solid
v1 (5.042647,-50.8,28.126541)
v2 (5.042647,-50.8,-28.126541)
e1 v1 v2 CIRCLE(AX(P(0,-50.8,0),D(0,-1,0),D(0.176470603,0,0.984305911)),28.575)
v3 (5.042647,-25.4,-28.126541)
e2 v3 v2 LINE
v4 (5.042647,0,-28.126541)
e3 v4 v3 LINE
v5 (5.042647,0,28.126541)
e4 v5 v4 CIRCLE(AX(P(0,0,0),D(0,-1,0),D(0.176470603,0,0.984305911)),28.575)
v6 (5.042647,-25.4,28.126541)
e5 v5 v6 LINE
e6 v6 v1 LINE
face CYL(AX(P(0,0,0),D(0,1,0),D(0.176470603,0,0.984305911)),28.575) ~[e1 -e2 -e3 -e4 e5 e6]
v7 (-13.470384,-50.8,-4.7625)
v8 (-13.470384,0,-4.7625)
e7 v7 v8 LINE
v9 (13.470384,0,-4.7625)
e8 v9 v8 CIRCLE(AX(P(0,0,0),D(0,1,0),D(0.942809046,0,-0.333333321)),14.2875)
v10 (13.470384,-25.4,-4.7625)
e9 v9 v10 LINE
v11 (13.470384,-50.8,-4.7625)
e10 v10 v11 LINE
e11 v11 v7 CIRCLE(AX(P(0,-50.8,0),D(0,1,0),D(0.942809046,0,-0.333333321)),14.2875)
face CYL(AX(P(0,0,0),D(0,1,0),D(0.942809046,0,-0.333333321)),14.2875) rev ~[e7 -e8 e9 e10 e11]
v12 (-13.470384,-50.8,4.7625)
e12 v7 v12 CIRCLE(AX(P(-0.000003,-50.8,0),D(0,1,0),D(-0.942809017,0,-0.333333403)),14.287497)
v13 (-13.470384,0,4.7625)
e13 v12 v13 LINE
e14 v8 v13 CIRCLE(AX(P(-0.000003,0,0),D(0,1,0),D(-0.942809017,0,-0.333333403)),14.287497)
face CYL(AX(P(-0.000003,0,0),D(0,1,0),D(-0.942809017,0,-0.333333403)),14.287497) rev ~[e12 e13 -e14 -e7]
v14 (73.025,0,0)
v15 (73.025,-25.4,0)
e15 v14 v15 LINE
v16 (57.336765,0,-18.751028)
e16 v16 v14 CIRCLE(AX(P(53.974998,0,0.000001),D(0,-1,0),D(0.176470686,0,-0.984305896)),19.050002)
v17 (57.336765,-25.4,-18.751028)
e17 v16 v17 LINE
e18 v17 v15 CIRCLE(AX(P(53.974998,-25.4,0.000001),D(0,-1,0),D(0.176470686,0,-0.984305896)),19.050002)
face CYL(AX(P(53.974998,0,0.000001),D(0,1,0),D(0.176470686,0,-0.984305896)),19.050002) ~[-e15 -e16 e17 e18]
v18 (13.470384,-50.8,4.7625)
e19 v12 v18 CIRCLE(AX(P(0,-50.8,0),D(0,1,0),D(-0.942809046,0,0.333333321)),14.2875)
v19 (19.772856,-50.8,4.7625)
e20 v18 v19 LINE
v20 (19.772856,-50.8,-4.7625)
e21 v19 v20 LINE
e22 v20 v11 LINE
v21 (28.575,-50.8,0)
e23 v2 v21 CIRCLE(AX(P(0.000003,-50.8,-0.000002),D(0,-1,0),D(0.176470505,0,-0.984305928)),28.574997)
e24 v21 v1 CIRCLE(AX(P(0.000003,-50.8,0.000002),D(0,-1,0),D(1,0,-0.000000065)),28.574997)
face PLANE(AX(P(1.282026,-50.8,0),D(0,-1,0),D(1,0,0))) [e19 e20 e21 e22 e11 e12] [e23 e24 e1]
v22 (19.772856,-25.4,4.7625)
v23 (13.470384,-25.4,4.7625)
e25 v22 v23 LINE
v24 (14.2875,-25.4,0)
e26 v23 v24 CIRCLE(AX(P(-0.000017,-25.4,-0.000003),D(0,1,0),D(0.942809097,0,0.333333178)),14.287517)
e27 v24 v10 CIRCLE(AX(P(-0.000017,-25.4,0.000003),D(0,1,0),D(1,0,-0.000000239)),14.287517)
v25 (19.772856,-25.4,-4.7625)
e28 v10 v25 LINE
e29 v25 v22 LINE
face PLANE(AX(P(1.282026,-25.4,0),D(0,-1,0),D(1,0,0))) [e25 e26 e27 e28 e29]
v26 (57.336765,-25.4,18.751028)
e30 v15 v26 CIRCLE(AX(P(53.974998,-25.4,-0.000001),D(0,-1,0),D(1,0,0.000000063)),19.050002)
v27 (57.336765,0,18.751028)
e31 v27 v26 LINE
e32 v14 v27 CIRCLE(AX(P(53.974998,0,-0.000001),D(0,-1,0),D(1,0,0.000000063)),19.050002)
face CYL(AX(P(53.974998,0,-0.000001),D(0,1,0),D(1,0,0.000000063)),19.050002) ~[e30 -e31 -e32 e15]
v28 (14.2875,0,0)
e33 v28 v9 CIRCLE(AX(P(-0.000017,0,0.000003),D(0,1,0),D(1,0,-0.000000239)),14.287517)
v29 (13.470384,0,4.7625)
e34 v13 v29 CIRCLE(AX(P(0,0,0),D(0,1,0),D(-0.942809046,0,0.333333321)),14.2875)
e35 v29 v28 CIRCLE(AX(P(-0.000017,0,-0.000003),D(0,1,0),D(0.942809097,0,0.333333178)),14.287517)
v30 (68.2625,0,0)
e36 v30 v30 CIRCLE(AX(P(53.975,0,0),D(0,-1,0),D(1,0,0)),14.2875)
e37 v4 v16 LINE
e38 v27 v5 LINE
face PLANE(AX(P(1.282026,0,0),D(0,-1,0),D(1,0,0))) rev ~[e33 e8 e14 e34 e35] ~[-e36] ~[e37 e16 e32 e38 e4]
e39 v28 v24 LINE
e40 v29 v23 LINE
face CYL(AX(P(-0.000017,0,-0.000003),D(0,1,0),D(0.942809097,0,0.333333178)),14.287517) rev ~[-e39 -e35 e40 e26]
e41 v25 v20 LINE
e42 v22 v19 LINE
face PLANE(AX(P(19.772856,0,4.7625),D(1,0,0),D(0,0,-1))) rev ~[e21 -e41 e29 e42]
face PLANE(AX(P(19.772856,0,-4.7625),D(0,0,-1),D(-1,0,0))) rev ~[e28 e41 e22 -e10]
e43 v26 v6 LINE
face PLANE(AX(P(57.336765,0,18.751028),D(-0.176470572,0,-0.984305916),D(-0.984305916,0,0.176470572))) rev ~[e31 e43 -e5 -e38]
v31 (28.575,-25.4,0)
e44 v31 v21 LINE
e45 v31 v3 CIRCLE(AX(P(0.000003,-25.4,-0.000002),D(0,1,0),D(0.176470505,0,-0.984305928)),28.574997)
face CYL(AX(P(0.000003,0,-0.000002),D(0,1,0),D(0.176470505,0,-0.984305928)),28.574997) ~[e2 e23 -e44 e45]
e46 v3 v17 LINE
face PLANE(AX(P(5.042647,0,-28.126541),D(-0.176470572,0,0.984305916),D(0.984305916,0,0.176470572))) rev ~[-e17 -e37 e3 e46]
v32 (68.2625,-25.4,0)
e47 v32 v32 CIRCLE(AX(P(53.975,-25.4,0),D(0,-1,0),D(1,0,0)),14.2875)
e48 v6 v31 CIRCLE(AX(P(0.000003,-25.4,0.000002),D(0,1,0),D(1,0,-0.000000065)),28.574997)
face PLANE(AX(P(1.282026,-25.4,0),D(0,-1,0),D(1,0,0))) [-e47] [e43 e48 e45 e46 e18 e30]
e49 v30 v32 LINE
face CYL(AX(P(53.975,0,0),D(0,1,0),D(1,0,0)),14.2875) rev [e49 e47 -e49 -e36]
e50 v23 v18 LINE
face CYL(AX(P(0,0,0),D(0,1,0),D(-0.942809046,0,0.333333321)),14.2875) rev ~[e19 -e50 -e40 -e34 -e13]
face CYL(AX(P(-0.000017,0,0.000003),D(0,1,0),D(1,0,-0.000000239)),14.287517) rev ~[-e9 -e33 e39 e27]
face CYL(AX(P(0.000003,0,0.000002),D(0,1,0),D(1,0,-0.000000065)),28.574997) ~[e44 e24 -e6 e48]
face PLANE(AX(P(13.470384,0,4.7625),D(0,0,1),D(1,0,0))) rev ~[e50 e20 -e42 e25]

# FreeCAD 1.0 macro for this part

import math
import FreeCAD as App
import Part
import Sketcher

V = App.Vector
Q = App.Units.Quantity

doc = App.newDocument("Part")
params = doc.addObject("Spreadsheet::Sheet", "Params")
for row, (alias, value) in enumerate([
    ("sketch1_radius", "0.7500001 in"),
    ("sketch1_diameter", "1.125 in"),
    ("sketch1_radius2", "1.125 in"),
    ("pad1_length", "1 in"),
    ("sketch2_radius", "1.1249999 in"),
    ("sketch2_radius2", "0.5625 in"),
    ("sketch2_height", "0.375 in"),
    ("pad2_length", "2 in"),
], start=1):
    params.set(f"A{row}", alias)
    params.set(f"B{row}", "=" + value)
    params.setAlias(f"B{row}", alias)

body = doc.addObject("PartDesign::Body", "Body")

sketch1 = body.newObject("Sketcher::SketchObject", "Sketch")
sketch1.AttachmentSupport = (doc.getObject("XZ_Plane"), [""])
sketch1.MapMode = "FlatFace"
sketch1.addGeometry(Part.ArcOfCircle(Part.Circle(V(0, 0, 0), V(0, 0, 1), 28.6), math.radians(80), math.radians(280)), False)
sketch1.addGeometry(Part.LineSegment(V(5, -28.1, 0), V(57.3, -18.8, 0)), False)
sketch1.addGeometry(Part.ArcOfCircle(Part.Circle(V(54, 0, 0), V(0, 0, 1), 19.1), math.radians(-80), math.radians(0)), False)
sketch1.addGeometry(Part.ArcOfCircle(Part.Circle(V(54, 0, 0), V(0, 0, 1), 19.1), math.radians(0), math.radians(80)), False)
sketch1.addGeometry(Part.LineSegment(V(57.3, 18.8, 0), V(5, 28.1, 0)), False)
sketch1.addGeometry(Part.ArcOfCircle(Part.Circle(V(0, 0, 0), V(0, 0, 1), 14.3), math.radians(-161), math.radians(-19)), False)
sketch1.addGeometry(Part.ArcOfCircle(Part.Circle(V(0, 0, 0), V(0, 0, 1), 14.3), math.radians(161), math.radians(199)), False)
sketch1.addGeometry(Part.ArcOfCircle(Part.Circle(V(0, 0, 0), V(0, 0, 1), 14.3), math.radians(19), math.radians(161)), False)
sketch1.addGeometry(Part.ArcOfCircle(Part.Circle(V(0, 0, 0), V(0, 0, 1), 14.3), math.radians(0), math.radians(19.47)), False)
sketch1.addGeometry(Part.ArcOfCircle(Part.Circle(V(0, 0, 0), V(0, 0, 1), 14.3), math.radians(-19.47), math.radians(0)), False)
sketch1.addGeometry(Part.Circle(V(54, 0, 0), V(0, 0, 1), 14.3), False)
sketch1.addConstraint(Sketcher.Constraint("Tangent", 0, 2, 1, 1))
sketch1.addConstraint(Sketcher.Constraint("Tangent", 1, 2, 2, 1))
sketch1.addConstraint(Sketcher.Constraint("Tangent", 2, 2, 3, 1))
sketch1.addConstraint(Sketcher.Constraint("Tangent", 3, 2, 4, 1))
sketch1.addConstraint(Sketcher.Constraint("Tangent", 4, 2, 0, 1))
sketch1.addConstraint(Sketcher.Constraint("Tangent", 5, 1, 6, 2))
sketch1.addConstraint(Sketcher.Constraint("Tangent", 6, 1, 7, 2))
sketch1.addConstraint(Sketcher.Constraint("Tangent", 7, 1, 8, 2))
sketch1.addConstraint(Sketcher.Constraint("Tangent", 8, 1, 9, 2))
sketch1.addConstraint(Sketcher.Constraint("Tangent", 9, 1, 5, 2))
sketch1.addConstraint(Sketcher.Constraint("Coincident", 0, 3, -1, 1))
sketch1.addConstraint(Sketcher.Constraint("Coincident", 5, 3, -1, 1))
sketch1.addConstraint(Sketcher.Constraint("Coincident", 7, 3, -1, 1))
sketch1.addConstraint(Sketcher.Constraint("Coincident", 10, 3, 2, 3))
sketch1.addConstraint(Sketcher.Constraint("Equal", 2, 3))
sketch1.addConstraint(Sketcher.Constraint("Equal", 7, 10))
sketch1.addConstraint(Sketcher.Constraint("PointOnObject", 2, 3, -1))
sketch1.addConstraint(Sketcher.Constraint("PointOnObject", 2, 2, -1))
sketch1.addConstraint(Sketcher.Constraint("PointOnObject", 8, 1, -1))
sketch1.addConstraint(Sketcher.Constraint("Horizontal", 6, 1, 7, 1))
sketch1.addConstraint(Sketcher.Constraint("Horizontal", 5, 1, 9, 1))
sketch1.addConstraint(Sketcher.Constraint("Vertical", 5, 1, 6, 1))
sketch1.addConstraint(Sketcher.Constraint("Radius", 2, Q("0.7500001 in")))
sketch1.addConstraint(Sketcher.Constraint("Diameter", 10, Q("1.125 in")))
sketch1.addConstraint(Sketcher.Constraint("Radius", 0, Q("1.125 in")))
sketch1.addConstraint(Sketcher.Constraint("DistanceX", -1, 1, 2, 3, Q("2.1249999 in")))
sketch1.addConstraint(Sketcher.Constraint("DistanceY", 5, 1, -1, 1, Q("0.1875 in")))
sketch1.setExpression("Constraints[22]", "Params.sketch1_radius")
sketch1.setExpression("Constraints[23]", "Params.sketch1_diameter")
sketch1.setExpression("Constraints[24]", "Params.sketch1_radius2")
pad1 = body.newObject("PartDesign::Pad", "Pad")
pad1.Profile = sketch1
pad1.setExpression("Length", "Params.pad1_length")

sketch2 = body.newObject("Sketcher::SketchObject", "Sketch001")
sketch2.AttachmentSupport = (doc.getObject("XZ_Plane"), [""])
sketch2.MapMode = "FlatFace"
sketch2.addGeometry(Part.ArcOfCircle(Part.Circle(V(0, 0, 0), V(0, 0, 1), 29), math.radians(-80), math.radians(0)), False)
sketch2.addGeometry(Part.ArcOfCircle(Part.Circle(V(0, 0, 0), V(0, 0, 1), 29), math.radians(0), math.radians(80)), False)
sketch2.addGeometry(Part.ArcOfCircle(Part.Circle(V(0, 0, 0), V(0, 0, 1), 29), math.radians(80), math.radians(280)), False)
sketch2.addGeometry(Part.ArcOfCircle(Part.Circle(V(0, 0, 0), V(0, 0, 1), 14), math.radians(-161), math.radians(-19)), False)
sketch2.addGeometry(Part.ArcOfCircle(Part.Circle(V(0, 0, 0), V(0, 0, 1), 14), math.radians(161), math.radians(199)), False)
sketch2.addGeometry(Part.ArcOfCircle(Part.Circle(V(0, 0, 0), V(0, 0, 1), 14), math.radians(19), math.radians(161)), False)
sketch2.addGeometry(Part.LineSegment(V(13, 5, 0), V(20, 5, 0)), False)
sketch2.addGeometry(Part.LineSegment(V(20, 5, 0), V(20, -5, 0)), False)
sketch2.addGeometry(Part.LineSegment(V(20, -5, 0), V(13, -5, 0)), False)
sketch2.addConstraint(Sketcher.Constraint("Tangent", 0, 2, 1, 1))
sketch2.addConstraint(Sketcher.Constraint("Tangent", 1, 2, 2, 1))
sketch2.addConstraint(Sketcher.Constraint("Tangent", 2, 2, 0, 1))
sketch2.addConstraint(Sketcher.Constraint("Tangent", 3, 1, 4, 2))
sketch2.addConstraint(Sketcher.Constraint("Tangent", 4, 1, 5, 2))
sketch2.addConstraint(Sketcher.Constraint("Coincident", 5, 1, 6, 1))
sketch2.addConstraint(Sketcher.Constraint("Coincident", 6, 2, 7, 1))
sketch2.addConstraint(Sketcher.Constraint("Coincident", 7, 2, 8, 1))
sketch2.addConstraint(Sketcher.Constraint("Coincident", 8, 2, 3, 2))
sketch2.addConstraint(Sketcher.Constraint("Horizontal", 6))
sketch2.addConstraint(Sketcher.Constraint("Vertical", 7))
sketch2.addConstraint(Sketcher.Constraint("Horizontal", 8))
sketch2.addConstraint(Sketcher.Constraint("Coincident", 0, 3, -1, 1))
sketch2.addConstraint(Sketcher.Constraint("Coincident", 3, 3, -1, 1))
sketch2.addConstraint(Sketcher.Constraint("Coincident", 5, 3, -1, 1))
sketch2.addConstraint(Sketcher.Constraint("PointOnObject", 0, 2, -1))
sketch2.addConstraint(Sketcher.Constraint("Horizontal", 4, 1, 5, 1))
sketch2.addConstraint(Sketcher.Constraint("Horizontal", 3, 1, 7, 2))
sketch2.addConstraint(Sketcher.Constraint("Vertical", 1, 2, 2, 2))
sketch2.addConstraint(Sketcher.Constraint("Vertical", 3, 1, 4, 1))
sketch2.addConstraint(Sketcher.Constraint("Radius", 0, Q("1.1249999 in")))
sketch2.addConstraint(Sketcher.Constraint("Radius", 3, Q("0.5625 in")))
sketch2.addConstraint(Sketcher.Constraint("DistanceY", 7, 2, 7, 1, Q("0.375 in")))
sketch2.addConstraint(Sketcher.Constraint("DistanceX", 6, 1, 6, 2, 6.302472))
sketch2.addConstraint(Sketcher.Constraint("DistanceY", -1, 1, 1, 2, 28.126541))
sketch2.setExpression("Constraints[20]", "Params.sketch2_radius")
sketch2.setExpression("Constraints[21]", "Params.sketch2_radius2")
sketch2.setExpression("Constraints[22]", "Params.sketch2_height")
pad2 = body.newObject("PartDesign::Pad", "Pad001")
pad2.Profile = sketch2
pad2.setExpression("Length", "Params.pad2_length")

doc.recompute()
